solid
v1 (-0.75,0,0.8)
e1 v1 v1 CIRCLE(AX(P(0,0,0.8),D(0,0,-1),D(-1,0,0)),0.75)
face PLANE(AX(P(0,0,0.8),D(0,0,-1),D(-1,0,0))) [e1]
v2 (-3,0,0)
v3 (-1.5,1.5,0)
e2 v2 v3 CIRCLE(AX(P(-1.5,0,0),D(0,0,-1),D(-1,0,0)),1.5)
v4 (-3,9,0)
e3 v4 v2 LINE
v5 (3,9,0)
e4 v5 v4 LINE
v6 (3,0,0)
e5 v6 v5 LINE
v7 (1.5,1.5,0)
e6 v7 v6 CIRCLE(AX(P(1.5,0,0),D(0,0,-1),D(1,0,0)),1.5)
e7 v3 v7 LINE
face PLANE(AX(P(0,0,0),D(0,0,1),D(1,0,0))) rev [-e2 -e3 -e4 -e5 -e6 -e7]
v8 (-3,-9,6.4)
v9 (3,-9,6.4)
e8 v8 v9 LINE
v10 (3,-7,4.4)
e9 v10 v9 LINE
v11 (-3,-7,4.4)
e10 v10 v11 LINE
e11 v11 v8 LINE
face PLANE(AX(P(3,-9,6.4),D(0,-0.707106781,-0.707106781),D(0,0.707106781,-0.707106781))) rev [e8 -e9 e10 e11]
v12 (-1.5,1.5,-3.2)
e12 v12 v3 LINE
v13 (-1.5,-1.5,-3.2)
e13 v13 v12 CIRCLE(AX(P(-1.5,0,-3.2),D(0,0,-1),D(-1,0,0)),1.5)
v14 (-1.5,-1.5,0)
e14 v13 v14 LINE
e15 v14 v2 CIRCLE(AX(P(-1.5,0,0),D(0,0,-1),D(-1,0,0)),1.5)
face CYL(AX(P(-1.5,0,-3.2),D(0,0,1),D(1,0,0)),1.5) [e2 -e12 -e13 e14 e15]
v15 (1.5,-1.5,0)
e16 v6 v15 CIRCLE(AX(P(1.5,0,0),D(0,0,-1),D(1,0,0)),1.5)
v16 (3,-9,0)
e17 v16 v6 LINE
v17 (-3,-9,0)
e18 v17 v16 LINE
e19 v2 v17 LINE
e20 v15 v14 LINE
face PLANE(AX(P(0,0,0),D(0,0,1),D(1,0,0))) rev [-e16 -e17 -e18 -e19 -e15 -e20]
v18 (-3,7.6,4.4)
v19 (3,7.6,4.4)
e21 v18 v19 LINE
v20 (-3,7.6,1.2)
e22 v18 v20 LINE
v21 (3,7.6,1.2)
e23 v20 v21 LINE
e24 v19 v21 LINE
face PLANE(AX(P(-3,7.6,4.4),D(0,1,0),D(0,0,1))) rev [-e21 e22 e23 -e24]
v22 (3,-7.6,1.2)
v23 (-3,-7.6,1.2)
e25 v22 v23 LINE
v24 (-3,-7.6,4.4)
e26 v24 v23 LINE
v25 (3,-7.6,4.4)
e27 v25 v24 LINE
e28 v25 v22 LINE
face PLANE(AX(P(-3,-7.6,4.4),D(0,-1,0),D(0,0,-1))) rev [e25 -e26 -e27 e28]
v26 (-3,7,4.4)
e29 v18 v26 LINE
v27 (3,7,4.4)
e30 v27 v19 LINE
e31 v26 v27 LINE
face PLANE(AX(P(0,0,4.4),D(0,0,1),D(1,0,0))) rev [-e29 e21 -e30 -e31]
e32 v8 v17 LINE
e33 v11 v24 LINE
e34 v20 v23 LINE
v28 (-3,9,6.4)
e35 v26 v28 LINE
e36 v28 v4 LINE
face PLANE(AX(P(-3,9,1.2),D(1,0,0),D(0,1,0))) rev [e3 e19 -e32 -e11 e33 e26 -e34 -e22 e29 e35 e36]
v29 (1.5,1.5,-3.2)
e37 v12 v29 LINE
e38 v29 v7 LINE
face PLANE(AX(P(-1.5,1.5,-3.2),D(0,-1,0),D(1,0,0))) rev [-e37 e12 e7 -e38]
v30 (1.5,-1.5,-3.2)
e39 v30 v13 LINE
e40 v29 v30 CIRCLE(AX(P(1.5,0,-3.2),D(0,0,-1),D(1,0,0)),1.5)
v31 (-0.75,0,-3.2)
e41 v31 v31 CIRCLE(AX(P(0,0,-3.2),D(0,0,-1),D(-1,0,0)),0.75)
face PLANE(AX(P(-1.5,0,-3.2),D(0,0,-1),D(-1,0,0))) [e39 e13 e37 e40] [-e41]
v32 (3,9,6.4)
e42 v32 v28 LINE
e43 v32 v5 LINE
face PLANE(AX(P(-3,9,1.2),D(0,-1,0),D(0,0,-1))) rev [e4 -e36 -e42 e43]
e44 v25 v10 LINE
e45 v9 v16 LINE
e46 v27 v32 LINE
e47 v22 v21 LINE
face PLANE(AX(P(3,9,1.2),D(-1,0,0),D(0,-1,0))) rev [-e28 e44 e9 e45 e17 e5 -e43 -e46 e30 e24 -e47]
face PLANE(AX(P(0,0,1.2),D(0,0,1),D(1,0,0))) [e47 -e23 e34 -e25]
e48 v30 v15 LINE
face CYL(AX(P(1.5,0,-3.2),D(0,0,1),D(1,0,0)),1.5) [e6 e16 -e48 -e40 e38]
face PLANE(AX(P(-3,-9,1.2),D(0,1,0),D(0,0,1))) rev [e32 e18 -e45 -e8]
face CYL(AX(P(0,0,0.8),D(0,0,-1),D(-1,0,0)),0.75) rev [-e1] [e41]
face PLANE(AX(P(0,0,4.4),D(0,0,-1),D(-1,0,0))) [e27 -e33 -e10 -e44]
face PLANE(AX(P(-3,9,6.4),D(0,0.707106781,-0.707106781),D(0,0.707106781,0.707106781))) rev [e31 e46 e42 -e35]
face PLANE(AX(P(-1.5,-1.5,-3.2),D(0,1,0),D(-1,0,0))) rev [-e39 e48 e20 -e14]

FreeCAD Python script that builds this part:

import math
import FreeCAD as App
import Part
import Sketcher

V = App.Vector
Q = App.Units.Quantity


def add_polygon(sketch, points):
    """Adds a closed chain of lines whose ends are joined by coincident constraints."""
    first, n = sketch.GeometryCount, len(points)
    for a, b in zip(points, points[1:] + points[:1]):
        sketch.addGeometry(Part.LineSegment(App.Vector(*a, 0), App.Vector(*b, 0)), False)
    for i in range(n):
        sketch.addConstraint(Sketcher.Constraint("Coincident", first + i, 2, first + (i + 1) % n, 1))

doc = App.newDocument("Part")
params = doc.addObject("Spreadsheet::Sheet", "Params")
for row, (alias, value) in enumerate([
    ("sketch1_width", "6 mm"),
    ("sketch1_height", "18 mm"),
    ("pad1_length", "1.2 mm"),
    ("sketch2_width", "6 mm"),
    ("sketch2_height", "1.4 mm"),
    ("pad2_length", "3.2 mm"),
    ("sketch3_width", "6 mm"),
    ("sketch3_height", "2 mm"),
    ("pad3_length", "2 mm"),
    ("sketch4_width", "2 mm"),
    ("pocket1_length", "6 mm"),
    ("sketch5_width", "6 mm"),
    ("sketch5_height", "2 mm"),
    ("pad4_length", "2 mm"),
    ("sketch6_width", "2 mm"),
    ("pocket2_length", "6 mm"),
    ("sketch7_radius", "1.5 mm"),
    ("sketch7_width", "3 mm"),
    ("pad5_length", "3.2 mm"),
    ("sketch8_diameter", "1.5 mm"),
    ("pocket3_length", "4 mm"),
], start=1):
    params.set(f"A{row}", alias)
    params.set(f"B{row}", "=" + value)
    params.setAlias(f"B{row}", alias)

body = doc.addObject("PartDesign::Body", "Body")

sketch1 = doc.addObject("Sketcher::SketchObject", "Sketch")
body.addObject(sketch1)
sketch1.AttachmentSupport = (doc.XY_Plane, [""])
sketch1.MapMode = "FlatFace"
add_polygon(sketch1, [(-3, 9), (-3, -9), (3, -9), (3, 9)])
sketch1.addConstraint(Sketcher.Constraint("Vertical", 0))
sketch1.addConstraint(Sketcher.Constraint("Horizontal", 1))
sketch1.addConstraint(Sketcher.Constraint("Vertical", 2))
sketch1.addConstraint(Sketcher.Constraint("Horizontal", 3))
sketch1.addConstraint(Sketcher.Constraint("Symmetric", 0, 2, 2, 2, -1, 1))
sketch1.addConstraint(Sketcher.Constraint("DistanceX", 1, 1, 1, 2, Q("6 mm")))
sketch1.addConstraint(Sketcher.Constraint("DistanceY", 0, 2, 0, 1, Q("18 mm")))
sketch1.setExpression("Constraints[9]", "Params.sketch1_width")
sketch1.setExpression("Constraints[10]", "Params.sketch1_height")
pad1 = doc.addObject("PartDesign::Pad", "Pad")
body.addObject(pad1)
pad1.Profile = sketch1
pad1.setExpression("Length", "Params.pad1_length")

sketch2 = doc.addObject("Sketcher::SketchObject", "Sketch001")
body.addObject(sketch2)
sketch2.AttachmentSupport = (doc.XY_Plane, [""])
sketch2.MapMode = "FlatFace"
sketch2.AttachmentOffset = App.Placement(V(0, 0, 1.2), App.Rotation())
add_polygon(sketch2, [(-3, 9), (-3, 7.6), (3, 7.6), (3, 9)])
add_polygon(sketch2, [(-3, -7.6), (-3, -9), (3, -9), (3, -7.6)])
sketch2.addConstraint(Sketcher.Constraint("Vertical", 0))
sketch2.addConstraint(Sketcher.Constraint("Horizontal", 1))
sketch2.addConstraint(Sketcher.Constraint("Vertical", 2))
sketch2.addConstraint(Sketcher.Constraint("Horizontal", 3))
sketch2.addConstraint(Sketcher.Constraint("Vertical", 4))
sketch2.addConstraint(Sketcher.Constraint("Horizontal", 5))
sketch2.addConstraint(Sketcher.Constraint("Vertical", 6))
sketch2.addConstraint(Sketcher.Constraint("Horizontal", 7))
sketch2.addConstraint(Sketcher.Constraint("Symmetric", 2, 2, 4, 2, -1, 1))
sketch2.addConstraint(Sketcher.Constraint("Symmetric", 0, 2, 6, 2, -1, 1))
sketch2.addConstraint(Sketcher.Constraint("Vertical", 3, 2, 4, 2))
sketch2.addConstraint(Sketcher.Constraint("DistanceX", 1, 1, 1, 2, Q("6 mm")))
sketch2.addConstraint(Sketcher.Constraint("DistanceY", 0, 2, 0, 1, Q("1.4 mm")))
sketch2.addConstraint(Sketcher.Constraint("DistanceY", -1, 1, 2, 2, Q("9 mm")))
sketch2.setExpression("Constraints[19]", "Params.sketch2_width")
sketch2.setExpression("Constraints[20]", "Params.sketch2_height")
pad2 = doc.addObject("PartDesign::Pad", "Pad001")
body.addObject(pad2)
pad2.Profile = sketch2
pad2.setExpression("Length", "Params.pad2_length")

sketch3 = doc.addObject("Sketcher::SketchObject", "Sketch002")
body.addObject(sketch3)
sketch3.AttachmentSupport = (doc.XY_Plane, [""])
sketch3.MapMode = "FlatFace"
sketch3.AttachmentOffset = App.Placement(V(0, 0, 4.4), App.Rotation())
add_polygon(sketch3, [(-3, 9), (-3, 7), (3, 7), (3, 9)])
sketch3.addConstraint(Sketcher.Constraint("Vertical", 0))
sketch3.addConstraint(Sketcher.Constraint("Horizontal", 1))
sketch3.addConstraint(Sketcher.Constraint("Vertical", 2))
sketch3.addConstraint(Sketcher.Constraint("Horizontal", 3))
sketch3.addConstraint(Sketcher.Constraint("DistanceX", 1, 1, 1, 2, Q("6 mm")))
sketch3.addConstraint(Sketcher.Constraint("DistanceY", 0, 2, 0, 1, Q("2 mm")))
sketch3.addConstraint(Sketcher.Constraint("DistanceX", 0, 2, -1, 1, Q("3 mm")))
sketch3.addConstraint(Sketcher.Constraint("DistanceY", -1, 1, 0, 2, Q("7 mm")))
sketch3.setExpression("Constraints[8]", "Params.sketch3_width")
sketch3.setExpression("Constraints[9]", "Params.sketch3_height")
pad3 = doc.addObject("PartDesign::Pad", "Pad002")
body.addObject(pad3)
pad3.Profile = sketch3
pad3.setExpression("Length", "Params.pad3_length")

sketch4 = doc.addObject("Sketcher::SketchObject", "Sketch003")
body.addObject(sketch4)
sketch4.AttachmentSupport = (doc.YZ_Plane, [""])
sketch4.MapMode = "FlatFace"
sketch4.AttachmentOffset = App.Placement(V(0, 0, 3), App.Rotation())
add_polygon(sketch4, [(7, 4.4), (9, 6.4), (7, 6.4)])
sketch4.addConstraint(Sketcher.Constraint("Horizontal", 1))
sketch4.addConstraint(Sketcher.Constraint("Vertical", 2))
sketch4.addConstraint(Sketcher.Constraint("Equal", 1, 2))
sketch4.addConstraint(Sketcher.Constraint("DistanceX", 1, 2, 1, 1, Q("2 mm")))
sketch4.addConstraint(Sketcher.Constraint("DistanceX", -1, 1, 0, 2, Q("9 mm")))
sketch4.addConstraint(Sketcher.Constraint("DistanceY", -1, 1, 0, 2, Q("6.4 mm")))
sketch4.setExpression("Constraints[6]", "Params.sketch4_width")
pocket1 = doc.addObject("PartDesign::Pocket", "Pocket")
body.addObject(pocket1)
pocket1.Profile = sketch4
pocket1.setExpression("Length", "Params.pocket1_length")

sketch5 = doc.addObject("Sketcher::SketchObject", "Sketch004")
body.addObject(sketch5)
sketch5.AttachmentSupport = (doc.XY_Plane, [""])
sketch5.MapMode = "FlatFace"
sketch5.AttachmentOffset = App.Placement(V(0, 0, 4.4), App.Rotation())
add_polygon(sketch5, [(-3, -7), (-3, -9), (3, -9), (3, -7)])
sketch5.addConstraint(Sketcher.Constraint("Vertical", 0))
sketch5.addConstraint(Sketcher.Constraint("Horizontal", 1))
sketch5.addConstraint(Sketcher.Constraint("Vertical", 2))
sketch5.addConstraint(Sketcher.Constraint("Horizontal", 3))
sketch5.addConstraint(Sketcher.Constraint("DistanceX", 1, 1, 1, 2, Q("6 mm")))
sketch5.addConstraint(Sketcher.Constraint("DistanceY", 0, 2, 0, 1, Q("2 mm")))
sketch5.addConstraint(Sketcher.Constraint("DistanceX", 0, 2, -1, 1, Q("3 mm")))
sketch5.addConstraint(Sketcher.Constraint("DistanceY", 0, 2, -1, 1, Q("9 mm")))
sketch5.setExpression("Constraints[8]", "Params.sketch5_width")
sketch5.setExpression("Constraints[9]", "Params.sketch5_height")
pad4 = doc.addObject("PartDesign::Pad", "Pad003")
body.addObject(pad4)
pad4.Profile = sketch5
pad4.setExpression("Length", "Params.pad4_length")

sketch6 = doc.addObject("Sketcher::SketchObject", "Sketch005")
body.addObject(sketch6)
sketch6.AttachmentSupport = (doc.YZ_Plane, [""])
sketch6.MapMode = "FlatFace"
sketch6.AttachmentOffset = App.Placement(V(0, 0, -3), App.Rotation())
add_polygon(sketch6, [(-7, 4.4), (-9, 6.4), (-7, 6.4)])
sketch6.addConstraint(Sketcher.Constraint("Horizontal", 1))
sketch6.addConstraint(Sketcher.Constraint("Vertical", 2))
sketch6.addConstraint(Sketcher.Constraint("Equal", 1, 2))
sketch6.addConstraint(Sketcher.Constraint("DistanceX", 1, 1, 1, 2, Q("2 mm")))
sketch6.addConstraint(Sketcher.Constraint("DistanceX", 0, 2, -1, 1, Q("9 mm")))
sketch6.addConstraint(Sketcher.Constraint("DistanceY", -1, 1, 0, 2, Q("6.4 mm")))
sketch6.setExpression("Constraints[6]", "Params.sketch6_width")
pocket2 = doc.addObject("PartDesign::Pocket", "Pocket001")
body.addObject(pocket2)
pocket2.Profile = sketch6
pocket2.setExpression("Length", "Params.pocket2_length")
pocket2.Reversed = True

sketch7 = doc.addObject("Sketcher::SketchObject", "Sketch006")
body.addObject(sketch7)
sketch7.AttachmentSupport = (doc.XY_Plane, [""])
sketch7.MapMode = "FlatFace"
sketch7.addGeometry(Part.LineSegment(V(-1.5, 1.5, 0), V(1.5, 1.5, 0)), False)
sketch7.addGeometry(Part.ArcOfCircle(Part.Circle(V(1.5, 0, 0), V(0, 0, 1), 1.5), math.radians(-90), math.radians(90)), False)
sketch7.addGeometry(Part.LineSegment(V(1.5, -1.5, 0), V(-1.5, -1.5, 0)), False)
sketch7.addGeometry(Part.ArcOfCircle(Part.Circle(V(-1.5, 0, 0), V(0, 0, 1), 1.5), math.radians(90), math.radians(270)), False)
sketch7.addConstraint(Sketcher.Constraint("Tangent", 0, 2, 1, 2))
sketch7.addConstraint(Sketcher.Constraint("Tangent", 1, 1, 2, 1))
sketch7.addConstraint(Sketcher.Constraint("Tangent", 2, 2, 3, 2))
sketch7.addConstraint(Sketcher.Constraint("Tangent", 3, 1, 0, 1))
sketch7.addConstraint(Sketcher.Constraint("Horizontal", 0))
sketch7.addConstraint(Sketcher.Constraint("Horizontal", 2))
sketch7.addConstraint(Sketcher.Constraint("Symmetric", 1, 3, 3, 3, -1, 1))
sketch7.addConstraint(Sketcher.Constraint("Radius", 1, Q("1.5 mm")))
sketch7.addConstraint(Sketcher.Constraint("DistanceX", 0, 1, 0, 2, Q("3 mm")))
sketch7.setExpression("Constraints[7]", "Params.sketch7_radius")
sketch7.setExpression("Constraints[8]", "Params.sketch7_width")
pad5 = doc.addObject("PartDesign::Pad", "Pad004")
body.addObject(pad5)
pad5.Profile = sketch7
pad5.setExpression("Length", "Params.pad5_length")
pad5.Reversed = True

sketch8 = doc.addObject("Sketcher::SketchObject", "Sketch007")
body.addObject(sketch8)
sketch8.AttachmentSupport = (doc.XY_Plane, [""])
sketch8.MapMode = "FlatFace"
sketch8.AttachmentOffset = App.Placement(V(0, 0, -3.2), App.Rotation())
sketch8.addGeometry(Part.Circle(V(0, 0, 0), V(0, 0, 1), 0.75), False)
sketch8.addConstraint(Sketcher.Constraint("Coincident", 0, 3, -1, 1))
sketch8.addConstraint(Sketcher.Constraint("Diameter", 0, Q("1.5 mm")))
sketch8.setExpression("Constraints[1]", "Params.sketch8_diameter")
pocket3 = doc.addObject("PartDesign::Pocket", "Pocket002")
body.addObject(pocket3)
pocket3.Profile = sketch8
pocket3.setExpression("Length", "Params.pocket3_length")
pocket3.Reversed = True

doc.recompute()
